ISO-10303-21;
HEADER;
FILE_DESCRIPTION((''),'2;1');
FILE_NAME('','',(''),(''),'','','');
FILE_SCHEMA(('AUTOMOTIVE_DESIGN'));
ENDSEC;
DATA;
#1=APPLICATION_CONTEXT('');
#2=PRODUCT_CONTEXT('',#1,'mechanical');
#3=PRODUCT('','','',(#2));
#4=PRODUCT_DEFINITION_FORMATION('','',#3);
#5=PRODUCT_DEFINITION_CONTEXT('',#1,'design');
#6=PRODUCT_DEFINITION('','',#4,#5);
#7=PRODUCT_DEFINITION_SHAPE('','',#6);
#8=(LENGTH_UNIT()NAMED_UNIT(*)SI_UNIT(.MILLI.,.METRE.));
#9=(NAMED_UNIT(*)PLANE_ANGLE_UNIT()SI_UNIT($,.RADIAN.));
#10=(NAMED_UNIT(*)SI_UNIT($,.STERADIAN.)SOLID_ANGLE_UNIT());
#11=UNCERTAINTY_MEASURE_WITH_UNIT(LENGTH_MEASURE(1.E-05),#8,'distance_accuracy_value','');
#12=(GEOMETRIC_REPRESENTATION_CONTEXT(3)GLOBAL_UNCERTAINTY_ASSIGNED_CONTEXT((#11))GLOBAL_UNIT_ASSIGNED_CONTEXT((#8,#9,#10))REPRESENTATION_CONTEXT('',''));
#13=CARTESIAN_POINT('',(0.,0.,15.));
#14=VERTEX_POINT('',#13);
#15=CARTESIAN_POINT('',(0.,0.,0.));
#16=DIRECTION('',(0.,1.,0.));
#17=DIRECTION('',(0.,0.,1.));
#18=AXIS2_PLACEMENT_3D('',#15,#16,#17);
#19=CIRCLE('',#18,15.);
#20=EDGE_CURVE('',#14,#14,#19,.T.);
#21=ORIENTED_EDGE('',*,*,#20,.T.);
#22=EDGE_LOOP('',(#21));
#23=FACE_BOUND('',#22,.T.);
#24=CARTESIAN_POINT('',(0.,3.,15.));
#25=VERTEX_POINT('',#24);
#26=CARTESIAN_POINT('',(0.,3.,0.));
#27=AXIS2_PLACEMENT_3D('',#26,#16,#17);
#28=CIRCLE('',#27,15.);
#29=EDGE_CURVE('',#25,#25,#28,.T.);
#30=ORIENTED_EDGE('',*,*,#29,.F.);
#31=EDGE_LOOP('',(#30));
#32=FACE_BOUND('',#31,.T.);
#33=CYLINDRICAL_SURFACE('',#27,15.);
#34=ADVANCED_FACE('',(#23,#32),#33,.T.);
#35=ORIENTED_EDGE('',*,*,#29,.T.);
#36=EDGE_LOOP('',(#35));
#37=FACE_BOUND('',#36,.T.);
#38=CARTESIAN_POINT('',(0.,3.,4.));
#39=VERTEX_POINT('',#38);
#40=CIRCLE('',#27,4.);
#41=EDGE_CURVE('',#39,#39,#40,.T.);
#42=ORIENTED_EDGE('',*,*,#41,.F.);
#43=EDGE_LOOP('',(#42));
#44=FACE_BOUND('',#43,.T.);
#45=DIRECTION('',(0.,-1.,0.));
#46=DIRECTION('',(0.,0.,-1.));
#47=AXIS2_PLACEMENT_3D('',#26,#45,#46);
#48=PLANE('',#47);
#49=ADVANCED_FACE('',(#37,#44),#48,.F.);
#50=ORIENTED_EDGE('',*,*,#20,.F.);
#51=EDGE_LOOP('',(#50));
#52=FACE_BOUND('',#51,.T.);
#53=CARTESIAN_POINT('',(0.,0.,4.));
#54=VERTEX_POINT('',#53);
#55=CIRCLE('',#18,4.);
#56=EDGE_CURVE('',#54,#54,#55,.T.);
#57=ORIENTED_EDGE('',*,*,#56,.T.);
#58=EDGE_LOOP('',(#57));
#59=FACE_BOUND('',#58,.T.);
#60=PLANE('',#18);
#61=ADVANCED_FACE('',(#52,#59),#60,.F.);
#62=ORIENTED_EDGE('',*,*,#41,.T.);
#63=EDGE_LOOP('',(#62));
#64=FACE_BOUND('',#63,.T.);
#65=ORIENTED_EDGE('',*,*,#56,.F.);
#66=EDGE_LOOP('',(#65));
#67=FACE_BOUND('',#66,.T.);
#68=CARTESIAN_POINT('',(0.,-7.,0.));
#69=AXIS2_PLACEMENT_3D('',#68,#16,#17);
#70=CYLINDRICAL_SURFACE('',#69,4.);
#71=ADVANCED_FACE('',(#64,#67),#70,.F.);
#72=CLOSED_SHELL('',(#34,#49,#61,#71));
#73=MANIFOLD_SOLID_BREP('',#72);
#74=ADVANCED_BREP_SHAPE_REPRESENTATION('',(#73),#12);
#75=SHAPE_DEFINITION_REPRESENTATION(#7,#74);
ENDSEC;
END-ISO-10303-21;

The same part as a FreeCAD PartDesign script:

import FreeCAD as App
import Part
import Sketcher


def add_polygon(sketch, points):
    """Adds a closed chain of lines whose ends are joined by coincident constraints."""
    first, n = sketch.GeometryCount, len(points)
    for a, b in zip(points, points[1:] + points[:1]):
        sketch.addGeometry(Part.LineSegment(App.Vector(*a, 0), App.Vector(*b, 0)), False)
    for i in range(n):
        sketch.addConstraint(Sketcher.Constraint("Coincident", first + i, 2, first + (i + 1) % n, 1))

doc = App.newDocument("Part")
body = doc.addObject("PartDesign::Body", "Body")

sketch1 = body.newObject("Sketcher::SketchObject", "Sketch")
sketch1.AttachmentSupport = (doc.getObject("XY_Plane"), [""])
sketch1.MapMode = "FlatFace"
add_polygon(sketch1, [(0, 3), (0, 0), (15, 0), (15, 3)])
sketch1.addConstraint([
    Sketcher.Constraint("Vertical", 0),
    Sketcher.Constraint("Horizontal", 1),
    Sketcher.Constraint("Vertical", 2),
    Sketcher.Constraint("Horizontal", 3),
    Sketcher.Constraint("Coincident", 0, 2, -1, 1),
    Sketcher.Constraint("DistanceX", 1, 1, 1, 2, 15.0),
    Sketcher.Constraint("DistanceY", 0, 2, 0, 1, 3.0),
])
revolution = body.newObject("PartDesign::Revolution", "Revolution")
revolution.Profile = sketch1
revolution.ReferenceAxis = (sketch1, ["V_Axis"])
revolution.Angle = 360

sketch2 = body.newObject("Sketcher::SketchObject", "Sketch001")
sketch2.AttachmentSupport = (doc.getObject("XZ_Plane"), [""])
sketch2.MapMode = "FlatFace"
sketch2.AttachmentOffset = App.Placement(App.Vector(0, 0, -3), App.Rotation())
sketch2.addGeometry(Part.Circle(App.Vector(0, 0, 0), App.Vector(0, 0, 1), 4), False)
sketch2.addConstraint([
    Sketcher.Constraint("Coincident", 0, 3, -1, 1),
    Sketcher.Constraint("Diameter", 0, 8.0),
])
pocket1 = body.newObject("PartDesign::Pocket", "Pocket")
pocket1.Profile = sketch2
pocket1.Length = 10
pocket1.Reversed = True

doc.recompute()
